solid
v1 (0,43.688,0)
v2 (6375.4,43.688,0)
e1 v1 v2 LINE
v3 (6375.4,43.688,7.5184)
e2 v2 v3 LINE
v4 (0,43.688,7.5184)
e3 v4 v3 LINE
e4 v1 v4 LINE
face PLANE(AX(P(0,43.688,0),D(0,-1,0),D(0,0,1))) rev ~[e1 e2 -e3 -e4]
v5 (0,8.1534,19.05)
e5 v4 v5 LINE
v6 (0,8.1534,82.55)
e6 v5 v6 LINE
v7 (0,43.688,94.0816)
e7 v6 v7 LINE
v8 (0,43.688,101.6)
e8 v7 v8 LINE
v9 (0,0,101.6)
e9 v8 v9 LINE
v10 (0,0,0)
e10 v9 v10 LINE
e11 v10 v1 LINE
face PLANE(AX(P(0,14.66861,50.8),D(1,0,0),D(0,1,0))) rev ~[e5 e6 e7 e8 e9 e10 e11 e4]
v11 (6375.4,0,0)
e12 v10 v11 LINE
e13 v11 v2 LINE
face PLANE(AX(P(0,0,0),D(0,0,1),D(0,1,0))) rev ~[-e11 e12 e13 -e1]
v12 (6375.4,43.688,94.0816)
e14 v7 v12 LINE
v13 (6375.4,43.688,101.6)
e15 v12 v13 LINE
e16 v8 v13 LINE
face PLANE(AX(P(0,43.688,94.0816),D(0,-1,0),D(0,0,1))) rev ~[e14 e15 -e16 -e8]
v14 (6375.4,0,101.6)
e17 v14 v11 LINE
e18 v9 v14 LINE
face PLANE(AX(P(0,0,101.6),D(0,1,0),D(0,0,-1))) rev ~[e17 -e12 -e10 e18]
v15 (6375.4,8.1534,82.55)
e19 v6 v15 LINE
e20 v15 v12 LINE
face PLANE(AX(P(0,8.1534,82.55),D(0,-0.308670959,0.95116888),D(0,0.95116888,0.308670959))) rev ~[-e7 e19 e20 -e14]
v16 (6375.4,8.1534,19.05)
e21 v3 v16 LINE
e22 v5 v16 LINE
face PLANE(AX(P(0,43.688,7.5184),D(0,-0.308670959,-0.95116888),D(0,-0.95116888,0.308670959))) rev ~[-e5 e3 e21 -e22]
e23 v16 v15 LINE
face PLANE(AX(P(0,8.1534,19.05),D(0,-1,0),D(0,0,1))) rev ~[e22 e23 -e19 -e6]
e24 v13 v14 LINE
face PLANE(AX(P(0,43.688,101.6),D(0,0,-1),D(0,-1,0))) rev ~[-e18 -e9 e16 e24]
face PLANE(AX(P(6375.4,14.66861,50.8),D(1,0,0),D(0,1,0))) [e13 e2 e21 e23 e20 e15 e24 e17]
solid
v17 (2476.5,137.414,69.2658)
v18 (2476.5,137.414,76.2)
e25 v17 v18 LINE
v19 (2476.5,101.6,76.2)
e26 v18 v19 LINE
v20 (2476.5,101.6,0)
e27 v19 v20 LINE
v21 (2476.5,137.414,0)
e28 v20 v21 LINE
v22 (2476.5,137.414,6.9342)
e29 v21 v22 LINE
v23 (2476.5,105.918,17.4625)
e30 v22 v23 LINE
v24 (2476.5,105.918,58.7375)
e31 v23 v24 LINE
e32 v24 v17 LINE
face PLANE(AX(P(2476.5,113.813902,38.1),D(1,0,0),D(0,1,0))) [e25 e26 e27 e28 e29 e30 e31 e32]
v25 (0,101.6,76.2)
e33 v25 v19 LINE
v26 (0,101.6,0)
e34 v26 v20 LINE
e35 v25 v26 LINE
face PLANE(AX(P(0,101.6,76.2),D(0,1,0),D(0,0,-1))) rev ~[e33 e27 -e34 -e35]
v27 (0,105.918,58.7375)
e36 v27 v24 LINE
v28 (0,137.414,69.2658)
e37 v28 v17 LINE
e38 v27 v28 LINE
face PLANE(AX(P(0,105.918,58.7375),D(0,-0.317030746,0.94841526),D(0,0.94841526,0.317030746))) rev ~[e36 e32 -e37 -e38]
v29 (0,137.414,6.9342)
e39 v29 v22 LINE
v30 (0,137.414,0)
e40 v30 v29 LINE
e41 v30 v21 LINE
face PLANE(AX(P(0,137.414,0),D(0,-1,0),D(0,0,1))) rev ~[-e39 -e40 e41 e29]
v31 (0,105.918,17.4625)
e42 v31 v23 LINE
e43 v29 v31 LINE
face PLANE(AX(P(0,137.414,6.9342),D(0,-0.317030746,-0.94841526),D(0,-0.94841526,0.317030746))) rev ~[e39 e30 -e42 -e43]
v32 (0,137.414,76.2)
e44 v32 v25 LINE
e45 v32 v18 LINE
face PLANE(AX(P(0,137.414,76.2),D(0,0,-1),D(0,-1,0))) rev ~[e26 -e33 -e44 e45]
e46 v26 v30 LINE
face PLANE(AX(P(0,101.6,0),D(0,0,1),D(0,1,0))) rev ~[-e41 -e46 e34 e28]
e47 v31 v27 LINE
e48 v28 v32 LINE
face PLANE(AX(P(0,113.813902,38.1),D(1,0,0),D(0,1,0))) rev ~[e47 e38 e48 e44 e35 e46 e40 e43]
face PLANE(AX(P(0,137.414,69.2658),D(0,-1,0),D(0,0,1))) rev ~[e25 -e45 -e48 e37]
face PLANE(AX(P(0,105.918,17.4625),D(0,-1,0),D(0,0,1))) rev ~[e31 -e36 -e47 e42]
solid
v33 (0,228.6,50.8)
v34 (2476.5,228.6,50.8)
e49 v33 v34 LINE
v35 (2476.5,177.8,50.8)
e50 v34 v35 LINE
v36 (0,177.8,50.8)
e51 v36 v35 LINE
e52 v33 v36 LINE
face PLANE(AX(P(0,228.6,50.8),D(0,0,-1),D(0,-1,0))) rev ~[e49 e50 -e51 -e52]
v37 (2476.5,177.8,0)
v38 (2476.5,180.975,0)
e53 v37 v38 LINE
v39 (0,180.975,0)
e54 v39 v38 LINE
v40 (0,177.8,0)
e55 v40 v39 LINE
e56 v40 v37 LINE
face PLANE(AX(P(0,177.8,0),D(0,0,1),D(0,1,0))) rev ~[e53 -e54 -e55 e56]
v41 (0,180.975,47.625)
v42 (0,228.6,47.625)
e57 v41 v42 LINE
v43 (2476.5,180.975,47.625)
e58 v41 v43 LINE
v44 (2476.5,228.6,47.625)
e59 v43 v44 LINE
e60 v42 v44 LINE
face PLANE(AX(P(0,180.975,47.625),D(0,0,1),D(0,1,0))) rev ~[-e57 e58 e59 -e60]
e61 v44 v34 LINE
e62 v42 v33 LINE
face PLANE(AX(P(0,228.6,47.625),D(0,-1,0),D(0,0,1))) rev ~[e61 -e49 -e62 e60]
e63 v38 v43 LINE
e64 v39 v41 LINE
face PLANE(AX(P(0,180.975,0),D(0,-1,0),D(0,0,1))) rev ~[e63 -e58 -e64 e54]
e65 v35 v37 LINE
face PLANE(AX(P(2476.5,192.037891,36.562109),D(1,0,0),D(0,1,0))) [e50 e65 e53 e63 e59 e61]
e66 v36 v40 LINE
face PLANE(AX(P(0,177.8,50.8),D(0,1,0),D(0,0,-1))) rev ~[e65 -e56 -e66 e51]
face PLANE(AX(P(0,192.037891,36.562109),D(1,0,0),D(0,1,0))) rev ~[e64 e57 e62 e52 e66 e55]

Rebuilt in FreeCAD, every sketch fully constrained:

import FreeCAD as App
import Part
import Sketcher

V = App.Vector
Q = App.Units.Quantity

doc = App.newDocument("Part")
params = doc.addObject("Spreadsheet::Sheet", "Params")
for row, (alias, value) in enumerate([
    ("sketch1_height", "4 in"),
    ("sketch1_height2", "2.5 in"),
    ("sketch1_width", "1.72 in"),
    ("sketch1_height3", "0.296 in"),
    ("pad1_length", "251 in"),
    ("sketch2_height", "3 in"),
    ("sketch2_width", "1.41 in"),
    ("sketch2_height2", "0.273 in"),
    ("sketch2_height3", "1.625 in"),
    ("pad2_length", "97.5 in"),
    ("sketch3_width", "2 in"),
    ("sketch3_width2", "0.125 in"),
    ("pad3_length", "97.5 in"),
], start=1):
    params.set(f"A{row}", alias)
    params.set(f"B{row}", "=" + value)
    params.setAlias(f"B{row}", alias)

body = doc.addObject("PartDesign::Body", "Body")

# Sketch on YZ plane
sketch1 = doc.addObject("Sketcher::SketchObject", "Sketch")
body.addObject(sketch1)
sketch1.AttachmentSupport = (doc.YZ_Plane, [""])
sketch1.MapMode = "FlatFace"
sketch1.addGeometry([
    Part.LineSegment(V(0, 101.6, 0), V(0, 0, 0)),  # 0
    Part.LineSegment(V(0, 0, 0), V(43.688, 0, 0)),  # 1
    Part.LineSegment(V(43.688, 0, 0), V(43.688, 7.5184, 0)),  # 2
    Part.LineSegment(V(43.688, 7.5184, 0), V(8.1534, 19.05, 0)),  # 3
    Part.LineSegment(V(8.1534, 19.05, 0), V(8.1534, 82.55, 0)),  # 4
    Part.LineSegment(V(8.1534, 82.55, 0), V(43.688, 94.0816, 0)),  # 5
    Part.LineSegment(V(43.688, 94.0816, 0), V(43.688, 101.6, 0)),  # 6
    Part.LineSegment(V(43.688, 101.6, 0), V(0, 101.6, 0)),  # 7
], False)
sketch1.addConstraint([
    Sketcher.Constraint("Coincident", 0, 2, 1, 1),
    Sketcher.Constraint("Coincident", 1, 2, 2, 1),
    Sketcher.Constraint("Coincident", 2, 2, 3, 1),
    Sketcher.Constraint("Coincident", 3, 2, 4, 1),
    Sketcher.Constraint("Coincident", 4, 2, 5, 1),
    Sketcher.Constraint("Coincident", 5, 2, 6, 1),
    Sketcher.Constraint("Coincident", 6, 2, 7, 1),
    Sketcher.Constraint("Coincident", 7, 2, 0, 1),
    Sketcher.Constraint("Vertical", 0),
    Sketcher.Constraint("Horizontal", 1),
    Sketcher.Constraint("Vertical", 2),
    Sketcher.Constraint("Vertical", 4),
    Sketcher.Constraint("Vertical", 6),
    Sketcher.Constraint("Horizontal", 7),
    Sketcher.Constraint("Coincident", 0, 2, -1, 1),
    Sketcher.Constraint("Vertical", 2, 2, 5, 2),
    Sketcher.Constraint("Equal", 2, 6),
    Sketcher.Constraint("Equal", 3, 5),
    Sketcher.Constraint("DistanceY", 0, 2, 0, 1, Q("4 in")),
    Sketcher.Constraint("DistanceY", 4, 1, 4, 2, Q("2.5 in")),
    Sketcher.Constraint("DistanceX", 1, 1, 1, 2, Q("1.72 in")),
    Sketcher.Constraint("DistanceY", 2, 1, 2, 2, Q("0.296 in")),
    Sketcher.Constraint("DistanceX", -1, 1, 3, 2, Q("0.321 in")),
])
sketch1.setExpression("Constraints[18]", "Params.sketch1_height")
sketch1.setExpression("Constraints[19]", "Params.sketch1_height2")
sketch1.setExpression("Constraints[20]", "Params.sketch1_width")
sketch1.setExpression("Constraints[21]", "Params.sketch1_height3")
pad1 = doc.addObject("PartDesign::Pad", "Pad")
body.addObject(pad1)
pad1.Profile = sketch1
pad1.setExpression("Length", "Params.pad1_length")
body2 = doc.addObject("PartDesign::Body", "Body001")

# Sketch on YZ plane
sketch2 = doc.addObject("Sketcher::SketchObject", "Sketch001")
body2.addObject(sketch2)
sketch2.AttachmentSupport = (doc.getObject("YZ_Plane001"), [""])
sketch2.MapMode = "FlatFace"
sketch2.addGeometry([
    Part.LineSegment(V(101.6, 76.2, 0), V(101.6, 0, 0)),  # 0
    Part.LineSegment(V(101.6, 0, 0), V(137.414, 0, 0)),  # 1
    Part.LineSegment(V(137.414, 0, 0), V(137.414, 6.9342, 0)),  # 2
    Part.LineSegment(V(137.414, 6.9342, 0), V(105.918, 17.4625, 0)),  # 3
    Part.LineSegment(V(105.918, 17.4625, 0), V(105.918, 58.7375, 0)),  # 4
    Part.LineSegment(V(105.918, 58.7375, 0), V(137.414, 69.2658, 0)),  # 5
    Part.LineSegment(V(137.414, 69.2658, 0), V(137.414, 76.2, 0)),  # 6
    Part.LineSegment(V(137.414, 76.2, 0), V(101.6, 76.2, 0)),  # 7
], False)
sketch2.addConstraint([
    Sketcher.Constraint("Coincident", 0, 2, 1, 1),
    Sketcher.Constraint("Coincident", 1, 2, 2, 1),
    Sketcher.Constraint("Coincident", 2, 2, 3, 1),
    Sketcher.Constraint("Coincident", 3, 2, 4, 1),
    Sketcher.Constraint("Coincident", 4, 2, 5, 1),
    Sketcher.Constraint("Coincident", 5, 2, 6, 1),
    Sketcher.Constraint("Coincident", 6, 2, 7, 1),
    Sketcher.Constraint("Coincident", 7, 2, 0, 1),
    Sketcher.Constraint("Vertical", 0),
    Sketcher.Constraint("Horizontal", 1),
    Sketcher.Constraint("Vertical", 2),
    Sketcher.Constraint("Vertical", 4),
    Sketcher.Constraint("Vertical", 6),
    Sketcher.Constraint("Horizontal", 7),
    Sketcher.Constraint("PointOnObject", 0, 2, -1),
    Sketcher.Constraint("Vertical", 2, 2, 5, 2),
    Sketcher.Constraint("Equal", 2, 6),
    Sketcher.Constraint("Equal", 3, 5),
    Sketcher.Constraint("DistanceY", 0, 2, 0, 1, Q("3 in")),
    Sketcher.Constraint("DistanceX", -1, 1, 0, 2, Q("4 in")),
    Sketcher.Constraint("DistanceX", 1, 1, 1, 2, Q("1.41 in")),
    Sketcher.Constraint("DistanceY", 2, 1, 2, 2, Q("0.273 in")),
    Sketcher.Constraint("DistanceY", 4, 1, 4, 2, Q("1.625 in")),
    Sketcher.Constraint("DistanceX", -1, 1, 3, 2, Q("4.17 in")),
])
sketch2.setExpression("Constraints[18]", "Params.sketch2_height")
sketch2.setExpression("Constraints[20]", "Params.sketch2_width")
sketch2.setExpression("Constraints[21]", "Params.sketch2_height2")
sketch2.setExpression("Constraints[22]", "Params.sketch2_height3")
pad2 = doc.addObject("PartDesign::Pad", "Pad001")
body2.addObject(pad2)
pad2.Profile = sketch2
pad2.setExpression("Length", "Params.pad2_length")
body3 = doc.addObject("PartDesign::Body", "Body002")

# Sketch on YZ plane
sketch3 = doc.addObject("Sketcher::SketchObject", "Sketch002")
body3.addObject(sketch3)
sketch3.AttachmentSupport = (doc.getObject("YZ_Plane002"), [""])
sketch3.MapMode = "FlatFace"
sketch3.addGeometry([
    Part.LineSegment(V(177.8, 50.8, 0), V(177.8, 0, 0)),  # 0
    Part.LineSegment(V(177.8, 0, 0), V(180.975, 0, 0)),  # 1
    Part.LineSegment(V(180.975, 0, 0), V(180.975, 47.625, 0)),  # 2
    Part.LineSegment(V(180.975, 47.625, 0), V(228.6, 47.625, 0)),  # 3
    Part.LineSegment(V(228.6, 47.625, 0), V(228.6, 50.8, 0)),  # 4
    Part.LineSegment(V(228.6, 50.8, 0), V(177.8, 50.8, 0)),  # 5
], False)
sketch3.addConstraint([
    Sketcher.Constraint("Coincident", 0, 2, 1, 1),
    Sketcher.Constraint("Coincident", 1, 2, 2, 1),
    Sketcher.Constraint("Coincident", 2, 2, 3, 1),
    Sketcher.Constraint("Coincident", 3, 2, 4, 1),
    Sketcher.Constraint("Coincident", 4, 2, 5, 1),
    Sketcher.Constraint("Coincident", 5, 2, 0, 1),
    Sketcher.Constraint("Vertical", 0),
    Sketcher.Constraint("Horizontal", 1),
    Sketcher.Constraint("Vertical", 2),
    Sketcher.Constraint("Horizontal", 3),
    Sketcher.Constraint("Vertical", 4),
    Sketcher.Constraint("Horizontal", 5),
    Sketcher.Constraint("PointOnObject", 0, 2, -1),
    Sketcher.Constraint("Equal", 5, 0),
    Sketcher.Constraint("Equal", 3, 2),
    Sketcher.Constraint("DistanceX", 5, 2, 5, 1, Q("2 in")),
    Sketcher.Constraint("DistanceX", -1, 1, 0, 2, Q("7 in")),
    Sketcher.Constraint("DistanceX", 1, 1, 1, 2, Q("0.125 in")),
])
sketch3.setExpression("Constraints[15]", "Params.sketch3_width")
sketch3.setExpression("Constraints[17]", "Params.sketch3_width2")
pad3 = doc.addObject("PartDesign::Pad", "Pad002")
body3.addObject(pad3)
pad3.Profile = sketch3
pad3.setExpression("Length", "Params.pad3_length")

doc.recompute()
